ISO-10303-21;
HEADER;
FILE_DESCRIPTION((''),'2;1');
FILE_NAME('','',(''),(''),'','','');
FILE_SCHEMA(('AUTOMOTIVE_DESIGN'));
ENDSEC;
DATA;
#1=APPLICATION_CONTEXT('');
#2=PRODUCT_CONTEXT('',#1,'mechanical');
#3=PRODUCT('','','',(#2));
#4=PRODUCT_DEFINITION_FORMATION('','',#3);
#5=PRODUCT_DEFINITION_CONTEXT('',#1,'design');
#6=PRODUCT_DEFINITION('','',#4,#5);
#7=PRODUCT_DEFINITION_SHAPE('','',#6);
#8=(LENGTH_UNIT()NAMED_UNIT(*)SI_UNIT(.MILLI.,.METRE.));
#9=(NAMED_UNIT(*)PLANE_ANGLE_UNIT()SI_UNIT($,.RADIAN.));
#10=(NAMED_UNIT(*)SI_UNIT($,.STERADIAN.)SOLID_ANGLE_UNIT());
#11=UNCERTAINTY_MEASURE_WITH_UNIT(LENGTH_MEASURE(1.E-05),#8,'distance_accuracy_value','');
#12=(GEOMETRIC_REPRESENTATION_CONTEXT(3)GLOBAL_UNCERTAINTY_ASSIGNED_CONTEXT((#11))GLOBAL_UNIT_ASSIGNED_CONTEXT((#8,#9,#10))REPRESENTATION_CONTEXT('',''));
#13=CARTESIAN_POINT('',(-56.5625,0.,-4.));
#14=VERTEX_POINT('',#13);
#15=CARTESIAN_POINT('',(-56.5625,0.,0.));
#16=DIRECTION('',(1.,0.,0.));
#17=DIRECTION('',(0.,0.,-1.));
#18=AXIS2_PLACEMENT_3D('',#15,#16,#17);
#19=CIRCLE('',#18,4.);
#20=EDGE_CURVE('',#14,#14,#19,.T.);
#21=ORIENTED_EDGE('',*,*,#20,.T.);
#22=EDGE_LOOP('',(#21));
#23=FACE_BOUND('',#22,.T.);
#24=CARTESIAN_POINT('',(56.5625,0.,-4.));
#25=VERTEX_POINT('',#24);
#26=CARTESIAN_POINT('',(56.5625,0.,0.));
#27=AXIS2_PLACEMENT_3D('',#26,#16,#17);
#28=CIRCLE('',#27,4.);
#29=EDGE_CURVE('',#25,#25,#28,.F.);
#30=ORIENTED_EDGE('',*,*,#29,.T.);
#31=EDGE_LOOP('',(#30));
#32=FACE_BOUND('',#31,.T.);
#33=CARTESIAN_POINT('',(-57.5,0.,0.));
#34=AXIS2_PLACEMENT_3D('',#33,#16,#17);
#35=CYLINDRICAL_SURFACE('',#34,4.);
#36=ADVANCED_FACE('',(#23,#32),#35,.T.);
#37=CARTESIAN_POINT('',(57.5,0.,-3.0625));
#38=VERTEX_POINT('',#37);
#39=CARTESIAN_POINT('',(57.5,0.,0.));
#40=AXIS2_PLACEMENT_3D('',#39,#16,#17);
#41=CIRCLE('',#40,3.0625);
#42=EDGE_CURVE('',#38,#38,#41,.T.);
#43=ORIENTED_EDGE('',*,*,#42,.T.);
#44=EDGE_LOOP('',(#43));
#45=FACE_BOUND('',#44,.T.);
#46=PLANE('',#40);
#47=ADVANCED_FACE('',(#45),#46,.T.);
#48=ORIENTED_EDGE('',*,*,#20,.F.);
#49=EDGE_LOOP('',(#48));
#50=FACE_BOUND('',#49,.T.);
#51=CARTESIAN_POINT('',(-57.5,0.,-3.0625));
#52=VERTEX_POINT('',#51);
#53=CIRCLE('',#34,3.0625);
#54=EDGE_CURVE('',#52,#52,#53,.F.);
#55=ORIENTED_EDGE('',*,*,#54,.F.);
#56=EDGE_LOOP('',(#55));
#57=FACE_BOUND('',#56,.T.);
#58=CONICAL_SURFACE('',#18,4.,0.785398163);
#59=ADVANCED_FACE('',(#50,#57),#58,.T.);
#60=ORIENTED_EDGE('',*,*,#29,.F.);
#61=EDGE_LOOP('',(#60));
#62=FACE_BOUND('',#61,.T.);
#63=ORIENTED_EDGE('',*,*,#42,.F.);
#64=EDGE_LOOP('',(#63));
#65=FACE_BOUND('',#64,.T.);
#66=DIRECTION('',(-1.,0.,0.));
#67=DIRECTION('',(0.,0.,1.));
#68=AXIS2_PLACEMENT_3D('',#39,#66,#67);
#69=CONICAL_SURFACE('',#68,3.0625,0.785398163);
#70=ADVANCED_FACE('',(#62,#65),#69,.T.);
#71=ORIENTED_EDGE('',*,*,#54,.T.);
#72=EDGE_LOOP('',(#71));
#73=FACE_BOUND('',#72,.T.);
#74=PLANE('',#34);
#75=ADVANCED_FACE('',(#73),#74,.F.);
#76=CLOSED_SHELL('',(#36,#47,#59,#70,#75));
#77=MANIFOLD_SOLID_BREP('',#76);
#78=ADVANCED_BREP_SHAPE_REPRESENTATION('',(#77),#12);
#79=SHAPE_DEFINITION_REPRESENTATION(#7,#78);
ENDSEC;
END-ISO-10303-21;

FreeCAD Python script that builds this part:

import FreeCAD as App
import Part
import Sketcher

V = App.Vector


def edges_at(feature, points):
    """Names of the edges that pass closest to the given points."""
    edges = feature.Shape.Edges
    near = lambda p: min(range(len(edges)), key=lambda i: edges[i].distToShape(Part.Vertex(*p))[0])
    return sorted({f"Edge{near(p) + 1}" for p in points})

doc = App.newDocument("Part")
params = doc.addObject("Spreadsheet::Sheet", "Params")
for row, (alias, value) in enumerate([
    ("sketch1_diameter", "8 mm"),
    ("pad1_length", "57.5 mm"),
    ("pad1_length2", "57.5 mm"),
    ("chamfer_size", "0.9375 mm"),
], start=1):
    params.set(f"A{row}", alias)
    params.set(f"B{row}", "=" + value)
    params.setAlias(f"B{row}", alias)

body = doc.addObject("PartDesign::Body", "Body")

sketch1 = body.newObject("Sketcher::SketchObject", "Sketch")
sketch1.AttachmentSupport = (doc.getObject("YZ_Plane"), [""])
sketch1.MapMode = "FlatFace"
sketch1.addGeometry(Part.Circle(V(0, 0, 0), V(0, 0, 1), 4), False)
sketch1.addConstraint(Sketcher.Constraint("Coincident", 0, 3, -1, 1))
sketch1.addConstraint(Sketcher.Constraint("Diameter", 0, 8.0))
sketch1.setExpression("Constraints[1]", "Params.sketch1_diameter")
pad1 = body.newObject("PartDesign::Pad", "Pad")
pad1.Profile = sketch1
pad1.Type = "TwoLengths"
pad1.setExpression("Length", "Params.pad1_length")
pad1.setExpression("Length2", "Params.pad1_length2")
doc.recompute()

chamfer = body.newObject("PartDesign::Chamfer", "Chamfer")
chamfer.Base = (pad1, edges_at(pad1, [(-57.5, 0, 4), (57.5, 0, 4)]))
chamfer.setExpression("Size", "Params.chamfer_size")

doc.recompute()
